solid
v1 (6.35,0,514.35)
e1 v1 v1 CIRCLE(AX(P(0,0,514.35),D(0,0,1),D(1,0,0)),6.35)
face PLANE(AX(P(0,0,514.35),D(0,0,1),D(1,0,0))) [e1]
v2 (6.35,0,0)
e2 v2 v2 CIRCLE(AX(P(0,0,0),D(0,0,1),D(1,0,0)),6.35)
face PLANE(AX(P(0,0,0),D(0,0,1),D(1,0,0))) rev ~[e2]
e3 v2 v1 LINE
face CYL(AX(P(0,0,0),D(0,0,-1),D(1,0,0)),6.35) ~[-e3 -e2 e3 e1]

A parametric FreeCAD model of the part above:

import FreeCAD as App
import Part
import Sketcher

V = App.Vector
Q = App.Units.Quantity

doc = App.newDocument("Part")
body = doc.addObject("PartDesign::Body", "Body")

sketch1 = doc.addObject("Sketcher::SketchObject", "Sketch")
body.addObject(sketch1)
sketch1.AttachmentSupport = (doc.XY_Plane, [""])
sketch1.MapMode = "FlatFace"
sketch1.addGeometry(Part.Circle(V(0, 0, 0), V(0, 0, 1), 6), False)
sketch1.addConstraint(Sketcher.Constraint("Coincident", 0, 3, -1, 1))
sketch1.addConstraint(Sketcher.Constraint("Diameter", 0, Q("0.5 in")))
pad1 = doc.addObject("PartDesign::Pad", "Pad")
body.addObject(pad1)
pad1.Profile = sketch1
pad1.Length = Q("20.25 in")

doc.recompute()
